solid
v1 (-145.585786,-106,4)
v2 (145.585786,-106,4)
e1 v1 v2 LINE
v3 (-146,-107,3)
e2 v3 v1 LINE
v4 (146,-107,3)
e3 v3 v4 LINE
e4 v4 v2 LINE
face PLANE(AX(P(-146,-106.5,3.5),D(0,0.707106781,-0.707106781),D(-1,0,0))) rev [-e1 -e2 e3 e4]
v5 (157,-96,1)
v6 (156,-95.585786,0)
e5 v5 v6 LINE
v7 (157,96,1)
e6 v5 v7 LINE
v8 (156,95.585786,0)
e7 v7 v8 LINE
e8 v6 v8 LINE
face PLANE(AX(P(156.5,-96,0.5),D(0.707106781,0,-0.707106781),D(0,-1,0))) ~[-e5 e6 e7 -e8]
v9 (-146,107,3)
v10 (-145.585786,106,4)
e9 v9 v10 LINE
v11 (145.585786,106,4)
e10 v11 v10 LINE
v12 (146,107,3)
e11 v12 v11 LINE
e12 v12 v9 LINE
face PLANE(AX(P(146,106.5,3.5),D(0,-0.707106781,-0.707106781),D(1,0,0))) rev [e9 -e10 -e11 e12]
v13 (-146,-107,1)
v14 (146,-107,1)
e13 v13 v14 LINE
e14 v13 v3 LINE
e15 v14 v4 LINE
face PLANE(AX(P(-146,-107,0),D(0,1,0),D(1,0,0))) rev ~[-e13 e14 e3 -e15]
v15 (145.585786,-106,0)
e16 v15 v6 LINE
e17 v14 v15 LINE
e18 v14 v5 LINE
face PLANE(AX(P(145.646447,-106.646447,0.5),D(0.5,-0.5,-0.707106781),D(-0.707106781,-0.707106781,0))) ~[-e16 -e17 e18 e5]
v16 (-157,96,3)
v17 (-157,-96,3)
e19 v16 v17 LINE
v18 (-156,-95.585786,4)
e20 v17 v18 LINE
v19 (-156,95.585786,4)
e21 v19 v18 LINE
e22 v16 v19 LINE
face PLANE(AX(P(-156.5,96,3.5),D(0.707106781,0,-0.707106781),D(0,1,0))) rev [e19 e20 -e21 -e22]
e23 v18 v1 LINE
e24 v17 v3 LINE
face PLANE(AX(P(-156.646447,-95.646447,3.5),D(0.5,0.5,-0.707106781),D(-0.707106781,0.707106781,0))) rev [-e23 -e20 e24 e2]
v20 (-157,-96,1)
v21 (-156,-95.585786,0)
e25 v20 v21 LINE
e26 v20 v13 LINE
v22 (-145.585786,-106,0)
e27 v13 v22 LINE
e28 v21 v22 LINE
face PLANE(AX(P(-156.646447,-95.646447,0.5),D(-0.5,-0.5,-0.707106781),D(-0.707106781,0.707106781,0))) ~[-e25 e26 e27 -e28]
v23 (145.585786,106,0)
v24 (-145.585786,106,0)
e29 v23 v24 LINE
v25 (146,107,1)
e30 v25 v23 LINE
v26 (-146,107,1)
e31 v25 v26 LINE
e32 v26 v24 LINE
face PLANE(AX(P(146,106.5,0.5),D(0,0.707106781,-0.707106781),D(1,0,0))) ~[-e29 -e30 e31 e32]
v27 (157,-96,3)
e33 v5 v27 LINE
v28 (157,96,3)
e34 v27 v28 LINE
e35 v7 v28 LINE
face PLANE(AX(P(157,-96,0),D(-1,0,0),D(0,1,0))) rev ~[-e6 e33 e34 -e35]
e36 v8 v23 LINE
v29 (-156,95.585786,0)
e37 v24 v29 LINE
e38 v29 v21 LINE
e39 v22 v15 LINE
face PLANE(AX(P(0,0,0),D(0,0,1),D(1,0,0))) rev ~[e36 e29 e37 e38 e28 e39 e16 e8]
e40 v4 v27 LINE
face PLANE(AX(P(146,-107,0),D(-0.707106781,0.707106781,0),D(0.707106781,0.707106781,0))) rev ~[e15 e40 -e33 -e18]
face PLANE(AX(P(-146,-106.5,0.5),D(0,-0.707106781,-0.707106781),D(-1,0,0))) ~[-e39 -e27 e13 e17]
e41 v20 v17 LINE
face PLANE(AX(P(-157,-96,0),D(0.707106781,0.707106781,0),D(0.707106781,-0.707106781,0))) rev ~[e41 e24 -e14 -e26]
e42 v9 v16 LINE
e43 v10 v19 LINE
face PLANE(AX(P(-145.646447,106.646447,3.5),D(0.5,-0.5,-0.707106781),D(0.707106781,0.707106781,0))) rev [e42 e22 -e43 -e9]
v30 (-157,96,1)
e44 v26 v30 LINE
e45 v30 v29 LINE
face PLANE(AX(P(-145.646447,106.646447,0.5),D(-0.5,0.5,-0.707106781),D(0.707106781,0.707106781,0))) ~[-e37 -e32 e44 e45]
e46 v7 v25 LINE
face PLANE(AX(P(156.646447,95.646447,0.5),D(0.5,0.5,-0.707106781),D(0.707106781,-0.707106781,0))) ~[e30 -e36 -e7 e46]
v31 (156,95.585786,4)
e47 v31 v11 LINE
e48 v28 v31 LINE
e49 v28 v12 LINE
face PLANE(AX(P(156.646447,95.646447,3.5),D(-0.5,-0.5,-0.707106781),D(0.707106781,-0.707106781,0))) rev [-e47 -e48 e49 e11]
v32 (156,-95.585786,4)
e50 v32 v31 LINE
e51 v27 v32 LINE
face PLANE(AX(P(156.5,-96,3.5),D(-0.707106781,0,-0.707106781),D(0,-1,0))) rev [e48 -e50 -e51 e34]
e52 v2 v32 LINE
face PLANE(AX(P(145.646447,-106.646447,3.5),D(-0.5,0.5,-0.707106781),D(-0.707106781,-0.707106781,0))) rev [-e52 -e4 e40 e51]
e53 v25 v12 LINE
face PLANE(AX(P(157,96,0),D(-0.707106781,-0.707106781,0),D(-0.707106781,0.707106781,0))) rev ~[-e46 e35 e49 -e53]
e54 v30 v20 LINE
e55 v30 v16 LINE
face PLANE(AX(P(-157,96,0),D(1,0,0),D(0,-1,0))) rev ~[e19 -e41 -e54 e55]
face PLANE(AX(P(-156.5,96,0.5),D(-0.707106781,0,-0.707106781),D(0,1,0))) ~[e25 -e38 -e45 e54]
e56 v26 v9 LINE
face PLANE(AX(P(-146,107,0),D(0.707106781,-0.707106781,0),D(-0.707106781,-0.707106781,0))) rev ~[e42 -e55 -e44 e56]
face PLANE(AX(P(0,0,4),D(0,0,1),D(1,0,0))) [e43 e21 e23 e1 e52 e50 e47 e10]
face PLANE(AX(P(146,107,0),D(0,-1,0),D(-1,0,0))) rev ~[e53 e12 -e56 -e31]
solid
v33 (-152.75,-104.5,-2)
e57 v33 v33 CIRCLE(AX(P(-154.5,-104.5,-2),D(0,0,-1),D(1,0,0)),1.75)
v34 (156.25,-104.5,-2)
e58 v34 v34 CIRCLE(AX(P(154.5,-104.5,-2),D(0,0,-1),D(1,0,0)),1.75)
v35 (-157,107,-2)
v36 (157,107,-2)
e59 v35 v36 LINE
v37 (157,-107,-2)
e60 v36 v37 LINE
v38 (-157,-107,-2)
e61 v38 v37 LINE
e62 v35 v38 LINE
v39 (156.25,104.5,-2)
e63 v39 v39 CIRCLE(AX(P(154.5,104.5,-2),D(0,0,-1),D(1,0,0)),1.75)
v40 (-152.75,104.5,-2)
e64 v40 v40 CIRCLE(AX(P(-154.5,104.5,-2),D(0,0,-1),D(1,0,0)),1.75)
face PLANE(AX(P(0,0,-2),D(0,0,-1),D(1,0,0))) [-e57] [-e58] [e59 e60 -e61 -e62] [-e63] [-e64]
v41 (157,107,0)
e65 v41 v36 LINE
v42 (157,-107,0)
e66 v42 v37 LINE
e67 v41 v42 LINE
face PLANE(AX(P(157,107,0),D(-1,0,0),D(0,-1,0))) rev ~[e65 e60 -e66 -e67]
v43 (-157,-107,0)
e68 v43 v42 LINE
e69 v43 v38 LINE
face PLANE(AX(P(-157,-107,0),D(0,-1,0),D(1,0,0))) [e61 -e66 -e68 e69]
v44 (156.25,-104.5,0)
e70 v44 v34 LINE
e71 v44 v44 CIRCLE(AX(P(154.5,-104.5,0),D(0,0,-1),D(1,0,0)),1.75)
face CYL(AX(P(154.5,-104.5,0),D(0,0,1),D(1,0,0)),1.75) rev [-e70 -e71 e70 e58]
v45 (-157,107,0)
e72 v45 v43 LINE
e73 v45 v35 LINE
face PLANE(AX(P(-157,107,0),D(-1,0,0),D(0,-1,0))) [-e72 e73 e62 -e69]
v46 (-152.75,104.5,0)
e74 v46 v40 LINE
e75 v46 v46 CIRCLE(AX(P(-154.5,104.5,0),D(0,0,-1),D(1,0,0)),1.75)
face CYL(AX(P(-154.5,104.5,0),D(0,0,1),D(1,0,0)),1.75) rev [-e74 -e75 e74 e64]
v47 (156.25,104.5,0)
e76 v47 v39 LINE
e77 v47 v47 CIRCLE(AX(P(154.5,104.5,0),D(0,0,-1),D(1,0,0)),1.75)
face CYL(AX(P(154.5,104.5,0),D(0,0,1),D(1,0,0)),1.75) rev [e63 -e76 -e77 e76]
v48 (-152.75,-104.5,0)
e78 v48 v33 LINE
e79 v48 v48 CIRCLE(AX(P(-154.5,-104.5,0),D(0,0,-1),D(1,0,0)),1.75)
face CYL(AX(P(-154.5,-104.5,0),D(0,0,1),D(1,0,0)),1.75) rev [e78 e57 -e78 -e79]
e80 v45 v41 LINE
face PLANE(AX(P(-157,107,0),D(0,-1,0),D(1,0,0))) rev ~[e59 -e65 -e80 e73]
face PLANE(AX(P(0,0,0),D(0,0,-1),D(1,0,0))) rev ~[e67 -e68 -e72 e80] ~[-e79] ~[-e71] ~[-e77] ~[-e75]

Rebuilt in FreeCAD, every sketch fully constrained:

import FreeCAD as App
import Part
import Sketcher


def edges_at(feature, points):
    """Names of the edges that pass closest to the given points."""
    edges = feature.Shape.Edges
    near = lambda p: min(range(len(edges)), key=lambda i: edges[i].distToShape(Part.Vertex(*p))[0])
    return sorted({f"Edge{near(p) + 1}" for p in points})

doc = App.newDocument("Part")
body = doc.addObject("PartDesign::Body", "Body")

# Sketch on XY plane
sketch1 = body.newObject("Sketcher::SketchObject", "Sketch")
sketch1.AttachmentSupport = (doc.getObject("XY_Plane"), [""])
sketch1.MapMode = "FlatFace"
sketch1.addGeometry([
    Part.LineSegment(App.Vector(-146, 107, 0), App.Vector(-157, 96, 0)),  # 0
    Part.LineSegment(App.Vector(-157, 96, 0), App.Vector(-157, -96, 0)),  # 1
    Part.LineSegment(App.Vector(-157, -96, 0), App.Vector(-146, -107, 0)),  # 2
    Part.LineSegment(App.Vector(-146, -107, 0), App.Vector(146, -107, 0)),  # 3
    Part.LineSegment(App.Vector(146, -107, 0), App.Vector(157, -96, 0)),  # 4
    Part.LineSegment(App.Vector(157, -96, 0), App.Vector(157, 96, 0)),  # 5
    Part.LineSegment(App.Vector(157, 96, 0), App.Vector(146, 107, 0)),  # 6
    Part.LineSegment(App.Vector(146, 107, 0), App.Vector(-146, 107, 0)),  # 7
], False)
sketch1.addConstraint([
    Sketcher.Constraint("Coincident", 0, 2, 1, 1),
    Sketcher.Constraint("Coincident", 1, 2, 2, 1),
    Sketcher.Constraint("Coincident", 2, 2, 3, 1),
    Sketcher.Constraint("Coincident", 3, 2, 4, 1),
    Sketcher.Constraint("Coincident", 4, 2, 5, 1),
    Sketcher.Constraint("Coincident", 5, 2, 6, 1),
    Sketcher.Constraint("Coincident", 6, 2, 7, 1),
    Sketcher.Constraint("Coincident", 7, 2, 0, 1),
    Sketcher.Constraint("Vertical", 1),
    Sketcher.Constraint("Horizontal", 3),
    Sketcher.Constraint("Vertical", 5),
    Sketcher.Constraint("Horizontal", 7),
    Sketcher.Constraint("Symmetric", 0, 2, 4, 2, -1, 1),
    Sketcher.Constraint("Symmetric", 2, 2, 6, 2, -1, 1),
    Sketcher.Constraint("Perpendicular", 0, 2),
    Sketcher.Constraint("Perpendicular", 2, 4),
    Sketcher.Constraint("Perpendicular", 4, 6),
    Sketcher.Constraint("Horizontal", 1, 2, 4, 2),
    Sketcher.Constraint("Vertical", 3, 2, 6, 2),
    Sketcher.Constraint("DistanceX", 3, 1, 3, 2, 292.0),
    Sketcher.Constraint("DistanceY", 1, 2, 1, 1, 192.0),
    Sketcher.Constraint("DistanceX", 0, 2, -1, 1, 157.0),
])
pad1 = body.newObject("PartDesign::Pad", "Pad")
pad1.Profile = sketch1
pad1.Length = 4
doc.recompute()

chamfer = body.newObject("PartDesign::Chamfer", "Chamfer")
chamfer.Base = (pad1, edges_at(pad1, [
    (-151.5, 101.5, 4),
    (-157, 0, 4),
    (-151.5, -101.5, 4),
    (0, -107, 4),
    (151.5, -101.5, 4),
    (157, 0, 4),
    (151.5, 101.5, 4),
    (0, 107, 4),
    (-151.5, 101.5, 0),
    (-157, 0, 0),
    (-151.5, -101.5, 0),
    (0, -107, 0),
    (151.5, -101.5, 0),
    (157, 0, 0),
    (151.5, 101.5, 0),
    (0, 107, 0),
]))
chamfer.Size = 1
body2 = doc.addObject("PartDesign::Body", "Body001")

# Sketch on XY plane
sketch2 = body2.newObject("Sketcher::SketchObject", "Sketch001")
sketch2.AttachmentSupport = (doc.getObject("XY_Plane001"), [""])
sketch2.MapMode = "FlatFace"
sketch2.addGeometry([
    Part.LineSegment(App.Vector(-157, -107, 0), App.Vector(-157, 107, 0)),  # 0
    Part.LineSegment(App.Vector(-157, 107, 0), App.Vector(157, 107, 0)),  # 1
    Part.LineSegment(App.Vector(157, 107, 0), App.Vector(157, -107, 0)),  # 2
    Part.LineSegment(App.Vector(157, -107, 0), App.Vector(-157, -107, 0)),  # 3
    Part.Circle(App.Vector(-154.5, 104.5, 0), App.Vector(0, 0, 1), 1.8),  # 4
    Part.Circle(App.Vector(154.5, 104.5, 0), App.Vector(0, 0, 1), 1.8),  # 5
    Part.Circle(App.Vector(-154.5, -104.5, 0), App.Vector(0, 0, 1), 1.8),  # 6
    Part.Circle(App.Vector(154.5, -104.5, 0), App.Vector(0, 0, 1), 1.8),  # 7
], False)
sketch2.addConstraint([
    Sketcher.Constraint("Coincident", 0, 2, 1, 1),
    Sketcher.Constraint("Coincident", 1, 2, 2, 1),
    Sketcher.Constraint("Coincident", 2, 2, 3, 1),
    Sketcher.Constraint("Coincident", 3, 2, 0, 1),
    Sketcher.Constraint("Vertical", 0),
    Sketcher.Constraint("Horizontal", 1),
    Sketcher.Constraint("Vertical", 2),
    Sketcher.Constraint("Horizontal", 3),
    Sketcher.Constraint("Equal", 4, 5),
    Sketcher.Constraint("Equal", 5, 6),
    Sketcher.Constraint("Equal", 6, 7),
    Sketcher.Constraint("Symmetric", 5, 3, 6, 3, -1, 1),
    Sketcher.Constraint("Symmetric", 4, 3, 7, 3, -1, 1),
    Sketcher.Constraint("Symmetric", 0, 2, 2, 2, -1, 1),
    Sketcher.Constraint("Symmetric", 4, 3, 5, 3, -2),
    Sketcher.Constraint("Diameter", 4, 3.5),
    Sketcher.Constraint("DistanceX", 1, 1, 1, 2, 314.0),
    Sketcher.Constraint("DistanceY", 0, 1, 0, 2, 214.0),
    Sketcher.Constraint("DistanceX", 4, 3, 5, 3, 309.0),
    Sketcher.Constraint("DistanceY", 6, 3, 4, 3, 209.0),
])
pad2 = body2.newObject("PartDesign::Pad", "Pad001")
pad2.Profile = sketch2
pad2.Length = 2
pad2.Reversed = True

doc.recompute()
